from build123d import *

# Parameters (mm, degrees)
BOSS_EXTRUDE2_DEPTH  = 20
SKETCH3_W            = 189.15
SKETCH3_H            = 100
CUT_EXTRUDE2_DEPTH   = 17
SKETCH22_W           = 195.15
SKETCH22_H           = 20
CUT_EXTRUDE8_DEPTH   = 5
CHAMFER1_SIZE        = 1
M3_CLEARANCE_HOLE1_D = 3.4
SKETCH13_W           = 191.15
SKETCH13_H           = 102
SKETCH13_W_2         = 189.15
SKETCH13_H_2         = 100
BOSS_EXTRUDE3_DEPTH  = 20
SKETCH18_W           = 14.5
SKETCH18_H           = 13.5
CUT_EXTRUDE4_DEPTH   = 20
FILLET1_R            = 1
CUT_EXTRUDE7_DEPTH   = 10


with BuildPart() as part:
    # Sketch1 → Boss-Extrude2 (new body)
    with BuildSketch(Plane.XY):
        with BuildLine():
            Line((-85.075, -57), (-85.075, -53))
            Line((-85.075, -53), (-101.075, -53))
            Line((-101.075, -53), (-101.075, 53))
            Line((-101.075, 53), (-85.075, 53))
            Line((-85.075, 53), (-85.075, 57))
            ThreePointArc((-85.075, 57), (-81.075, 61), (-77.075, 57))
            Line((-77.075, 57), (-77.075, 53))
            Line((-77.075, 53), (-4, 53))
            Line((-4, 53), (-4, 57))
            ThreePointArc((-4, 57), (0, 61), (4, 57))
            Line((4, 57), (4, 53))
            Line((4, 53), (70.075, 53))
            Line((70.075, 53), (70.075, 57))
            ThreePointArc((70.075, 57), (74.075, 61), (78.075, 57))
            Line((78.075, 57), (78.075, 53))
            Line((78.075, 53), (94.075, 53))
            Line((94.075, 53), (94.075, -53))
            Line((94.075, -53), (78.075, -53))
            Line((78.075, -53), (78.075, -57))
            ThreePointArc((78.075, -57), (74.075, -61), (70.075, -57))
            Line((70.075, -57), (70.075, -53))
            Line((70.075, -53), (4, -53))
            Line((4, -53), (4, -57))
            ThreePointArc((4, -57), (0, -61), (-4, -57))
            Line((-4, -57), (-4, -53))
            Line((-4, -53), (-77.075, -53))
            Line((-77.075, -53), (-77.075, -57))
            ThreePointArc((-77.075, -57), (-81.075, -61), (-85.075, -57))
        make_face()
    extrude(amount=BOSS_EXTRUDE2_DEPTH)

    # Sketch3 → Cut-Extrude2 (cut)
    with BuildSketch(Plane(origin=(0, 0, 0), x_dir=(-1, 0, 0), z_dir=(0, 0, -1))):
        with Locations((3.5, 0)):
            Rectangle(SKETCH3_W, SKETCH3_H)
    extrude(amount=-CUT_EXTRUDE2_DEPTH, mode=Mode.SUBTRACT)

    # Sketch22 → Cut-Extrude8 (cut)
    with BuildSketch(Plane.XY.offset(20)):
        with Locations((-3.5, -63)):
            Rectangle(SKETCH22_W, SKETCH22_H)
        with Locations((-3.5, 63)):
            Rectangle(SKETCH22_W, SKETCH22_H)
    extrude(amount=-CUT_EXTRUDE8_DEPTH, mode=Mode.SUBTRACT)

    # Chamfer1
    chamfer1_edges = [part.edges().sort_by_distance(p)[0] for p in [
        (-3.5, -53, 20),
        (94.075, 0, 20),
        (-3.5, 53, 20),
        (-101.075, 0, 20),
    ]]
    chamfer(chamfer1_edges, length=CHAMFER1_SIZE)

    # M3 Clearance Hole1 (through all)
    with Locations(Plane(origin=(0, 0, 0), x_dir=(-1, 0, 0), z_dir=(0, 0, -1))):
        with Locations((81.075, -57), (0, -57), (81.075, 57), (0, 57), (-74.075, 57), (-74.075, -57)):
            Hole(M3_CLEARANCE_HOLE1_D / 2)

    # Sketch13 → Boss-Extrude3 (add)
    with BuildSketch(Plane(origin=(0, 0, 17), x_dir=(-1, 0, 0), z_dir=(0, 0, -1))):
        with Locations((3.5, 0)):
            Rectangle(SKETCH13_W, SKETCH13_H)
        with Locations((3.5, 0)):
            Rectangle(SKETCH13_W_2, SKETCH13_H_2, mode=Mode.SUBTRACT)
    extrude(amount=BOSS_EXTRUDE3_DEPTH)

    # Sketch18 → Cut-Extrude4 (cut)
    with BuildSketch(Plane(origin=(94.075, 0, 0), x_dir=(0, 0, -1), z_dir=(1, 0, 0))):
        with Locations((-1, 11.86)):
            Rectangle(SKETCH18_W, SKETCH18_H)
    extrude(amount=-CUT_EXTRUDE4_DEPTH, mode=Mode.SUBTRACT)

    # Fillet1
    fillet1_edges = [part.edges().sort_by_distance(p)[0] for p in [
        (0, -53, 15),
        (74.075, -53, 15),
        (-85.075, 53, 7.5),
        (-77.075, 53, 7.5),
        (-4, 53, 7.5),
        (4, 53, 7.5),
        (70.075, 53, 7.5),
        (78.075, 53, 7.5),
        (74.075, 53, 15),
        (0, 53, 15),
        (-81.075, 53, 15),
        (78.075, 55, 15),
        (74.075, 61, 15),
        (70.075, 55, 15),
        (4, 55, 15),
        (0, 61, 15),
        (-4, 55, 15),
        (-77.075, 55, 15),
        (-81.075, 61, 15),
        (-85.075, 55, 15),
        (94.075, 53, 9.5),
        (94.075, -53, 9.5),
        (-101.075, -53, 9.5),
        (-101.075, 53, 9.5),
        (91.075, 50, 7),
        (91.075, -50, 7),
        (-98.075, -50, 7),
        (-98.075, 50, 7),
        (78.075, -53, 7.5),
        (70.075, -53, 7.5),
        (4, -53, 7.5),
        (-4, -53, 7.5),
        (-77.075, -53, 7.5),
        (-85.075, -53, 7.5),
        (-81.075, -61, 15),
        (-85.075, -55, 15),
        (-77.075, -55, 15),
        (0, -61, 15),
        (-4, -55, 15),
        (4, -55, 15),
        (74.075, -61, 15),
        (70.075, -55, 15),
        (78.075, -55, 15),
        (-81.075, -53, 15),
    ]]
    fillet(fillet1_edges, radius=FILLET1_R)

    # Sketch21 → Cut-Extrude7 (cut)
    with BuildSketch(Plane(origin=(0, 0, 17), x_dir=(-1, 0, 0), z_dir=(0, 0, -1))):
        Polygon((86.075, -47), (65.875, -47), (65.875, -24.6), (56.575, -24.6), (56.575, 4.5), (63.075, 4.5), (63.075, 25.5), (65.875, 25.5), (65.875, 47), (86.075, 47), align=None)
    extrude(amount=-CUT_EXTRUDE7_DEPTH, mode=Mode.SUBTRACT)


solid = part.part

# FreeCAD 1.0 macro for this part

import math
import FreeCAD as App
import Part
import Sketcher


def edges_at(feature, points):
    """Names of the edges that pass closest to the given points."""
    edges = feature.Shape.Edges
    near = lambda p: min(range(len(edges)), key=lambda i: edges[i].distToShape(Part.Vertex(*p))[0])
    return sorted({f"Edge{near(p) + 1}" for p in points})


def add_polygon(sketch, points):
    """Adds a closed chain of lines whose ends are joined by coincident constraints."""
    first, n = sketch.GeometryCount, len(points)
    for a, b in zip(points, points[1:] + points[:1]):
        sketch.addGeometry(Part.LineSegment(App.Vector(*a, 0), App.Vector(*b, 0)), False)
    for i in range(n):
        sketch.addConstraint(Sketcher.Constraint("Coincident", first + i, 2, first + (i + 1) % n, 1))

doc = App.newDocument("Part")
body = doc.addObject("PartDesign::Body", "Body")

# Sketch on XY plane
sketch1 = body.newObject("Sketcher::SketchObject", "Sketch")
sketch1.AttachmentSupport = (doc.getObject("XY_Plane"), [""])
sketch1.MapMode = "FlatFace"
sketch1.addGeometry([
    Part.LineSegment(App.Vector(-85.075, -53, 0), App.Vector(-85.075, -57, 0)),  # 0
    Part.ArcOfCircle(Part.Circle(App.Vector(-81.075, -57, 0), App.Vector(0, 0, 1), 4), math.radians(180), math.radians(360)),  # 1
    Part.LineSegment(App.Vector(-77.075, -57, 0), App.Vector(-77.075, -53, 0)),  # 2
    Part.LineSegment(App.Vector(-77.075, -53, 0), App.Vector(-4, -53, 0)),  # 3
    Part.LineSegment(App.Vector(-4, -53, 0), App.Vector(-4, -57, 0)),  # 4
    Part.ArcOfCircle(Part.Circle(App.Vector(0, -57, 0), App.Vector(0, 0, 1), 4), math.radians(180), math.radians(360)),  # 5
    Part.LineSegment(App.Vector(4, -57, 0), App.Vector(4, -53, 0)),  # 6
    Part.LineSegment(App.Vector(4, -53, 0), App.Vector(70.075, -53, 0)),  # 7
    Part.LineSegment(App.Vector(70.075, -53, 0), App.Vector(70.075, -57, 0)),  # 8
    Part.ArcOfCircle(Part.Circle(App.Vector(74.075, -57, 0), App.Vector(0, 0, 1), 4), math.radians(180), math.radians(360)),  # 9
    Part.LineSegment(App.Vector(78.075, -57, 0), App.Vector(78.075, -53, 0)),  # 10
    Part.LineSegment(App.Vector(78.075, -53, 0), App.Vector(94.075, -53, 0)),  # 11
    Part.LineSegment(App.Vector(94.075, -53, 0), App.Vector(94.075, 53, 0)),  # 12
    Part.LineSegment(App.Vector(94.075, 53, 0), App.Vector(78.075, 53, 0)),  # 13
    Part.LineSegment(App.Vector(78.075, 53, 0), App.Vector(78.075, 57, 0)),  # 14
    Part.ArcOfCircle(Part.Circle(App.Vector(74.075, 57, 0), App.Vector(0, 0, 1), 4), math.radians(0), math.radians(180)),  # 15
    Part.LineSegment(App.Vector(70.075, 57, 0), App.Vector(70.075, 53, 0)),  # 16
    Part.LineSegment(App.Vector(70.075, 53, 0), App.Vector(4, 53, 0)),  # 17
    Part.LineSegment(App.Vector(4, 53, 0), App.Vector(4, 57, 0)),  # 18
    Part.ArcOfCircle(Part.Circle(App.Vector(0, 57, 0), App.Vector(0, 0, 1), 4), math.radians(0), math.radians(180)),  # 19
    Part.LineSegment(App.Vector(-4, 57, 0), App.Vector(-4, 53, 0)),  # 20
    Part.LineSegment(App.Vector(-4, 53, 0), App.Vector(-77.075, 53, 0)),  # 21
    Part.LineSegment(App.Vector(-77.075, 53, 0), App.Vector(-77.075, 57, 0)),  # 22
    Part.ArcOfCircle(Part.Circle(App.Vector(-81.075, 57, 0), App.Vector(0, 0, 1), 4), math.radians(0), math.radians(180)),  # 23
    Part.LineSegment(App.Vector(-85.075, 57, 0), App.Vector(-85.075, 53, 0)),  # 24
    Part.LineSegment(App.Vector(-85.075, 53, 0), App.Vector(-101.075, 53, 0)),  # 25
    Part.LineSegment(App.Vector(-101.075, 53, 0), App.Vector(-101.075, -53, 0)),  # 26
    Part.LineSegment(App.Vector(-101.075, -53, 0), App.Vector(-85.075, -53, 0)),  # 27
], False)
sketch1.addConstraint([
    Sketcher.Constraint("Tangent", 0, 2, 1, 1),
    Sketcher.Constraint("Tangent", 1, 2, 2, 1),
    Sketcher.Constraint("Coincident", 2, 2, 3, 1),
    Sketcher.Constraint("Coincident", 3, 2, 4, 1),
    Sketcher.Constraint("Tangent", 4, 2, 5, 1),
    Sketcher.Constraint("Tangent", 5, 2, 6, 1),
    Sketcher.Constraint("Coincident", 6, 2, 7, 1),
    Sketcher.Constraint("Coincident", 7, 2, 8, 1),
    Sketcher.Constraint("Tangent", 8, 2, 9, 1),
    Sketcher.Constraint("Tangent", 9, 2, 10, 1),
    Sketcher.Constraint("Coincident", 10, 2, 11, 1),
    Sketcher.Constraint("Coincident", 11, 2, 12, 1),
    Sketcher.Constraint("Coincident", 12, 2, 13, 1),
    Sketcher.Constraint("Coincident", 13, 2, 14, 1),
    Sketcher.Constraint("Tangent", 14, 2, 15, 1),
    Sketcher.Constraint("Tangent", 15, 2, 16, 1),
    Sketcher.Constraint("Coincident", 16, 2, 17, 1),
    Sketcher.Constraint("Coincident", 17, 2, 18, 1),
    Sketcher.Constraint("Tangent", 18, 2, 19, 1),
    Sketcher.Constraint("Tangent", 19, 2, 20, 1),
    Sketcher.Constraint("Coincident", 20, 2, 21, 1),
    Sketcher.Constraint("Coincident", 21, 2, 22, 1),
    Sketcher.Constraint("Tangent", 22, 2, 23, 1),
    Sketcher.Constraint("Tangent", 23, 2, 24, 1),
    Sketcher.Constraint("Coincident", 24, 2, 25, 1),
    Sketcher.Constraint("Coincident", 25, 2, 26, 1),
    Sketcher.Constraint("Coincident", 26, 2, 27, 1),
    Sketcher.Constraint("Coincident", 27, 2, 0, 1),
    Sketcher.Constraint("Vertical", 0),
    Sketcher.Constraint("Vertical", 2),
    Sketcher.Constraint("Horizontal", 3),
    Sketcher.Constraint("Vertical", 4),
    Sketcher.Constraint("Vertical", 6),
    Sketcher.Constraint("Horizontal", 7),
    Sketcher.Constraint("Vertical", 8),
    Sketcher.Constraint("Vertical", 10),
    Sketcher.Constraint("Horizontal", 11),
    Sketcher.Constraint("Vertical", 12),
    Sketcher.Constraint("Horizontal", 13),
    Sketcher.Constraint("Vertical", 14),
    Sketcher.Constraint("Vertical", 16),
    Sketcher.Constraint("Horizontal", 17),
    Sketcher.Constraint("Vertical", 18),
    Sketcher.Constraint("Vertical", 20),
    Sketcher.Constraint("Horizontal", 21),
    Sketcher.Constraint("Vertical", 22),
    Sketcher.Constraint("Vertical", 24),
    Sketcher.Constraint("Horizontal", 25),
    Sketcher.Constraint("Vertical", 26),
    Sketcher.Constraint("Horizontal", 27),
    Sketcher.Constraint("Equal", 1, 5),
    Sketcher.Constraint("Equal", 5, 9),
    Sketcher.Constraint("Equal", 9, 15),
    Sketcher.Constraint("Equal", 15, 19),
    Sketcher.Constraint("Equal", 19, 23),
    Sketcher.Constraint("Symmetric", 5, 3, 19, 3, -1, 1),
    Sketcher.Constraint("Symmetric", 3, 2, 6, 2, -2),
    Sketcher.Constraint("Symmetric", 9, 3, 15, 3, -1),
    Sketcher.Constraint("Symmetric", 1, 3, 23, 3, -1),
    Sketcher.Constraint("Horizontal", 1, 3, 5, 3),
    Sketcher.Constraint("Horizontal", 5, 3, 9, 3),
    Sketcher.Constraint("Horizontal", 7, 2, 10, 2),
    Sketcher.Constraint("Horizontal", 13, 2, 16, 2),
    Sketcher.Constraint("Horizontal", 17, 2, 20, 2),
    Sketcher.Constraint("Horizontal", 21, 2, 24, 2),
    Sketcher.Constraint("Horizontal", 11, 2, 26, 2),
    Sketcher.Constraint("Equal", 13, 25),
    Sketcher.Constraint("Equal", 10, 14),
    Sketcher.Constraint("Radius", 1, 4.0),
    Sketcher.Constraint("DistanceX", 11, 1, 11, 2, 16.0),
    Sketcher.Constraint("DistanceY", 0, 2, 0, 1, 4.0),
    Sketcher.Constraint("DistanceY", 12, 1, 12, 2, 106.0),
    Sketcher.Constraint("DistanceX", 3, 1, 3, 2, 73.075),
    Sketcher.Constraint("DistanceX", 7, 1, 7, 2, 66.075),
])
pad1 = body.newObject("PartDesign::Pad", "Pad")
pad1.Profile = sketch1
pad1.Length = 20

# Sketch on XY plane
sketch2 = body.newObject("Sketcher::SketchObject", "Sketch001")
sketch2.AttachmentSupport = (doc.getObject("XY_Plane"), [""])
sketch2.MapMode = "FlatFace"
add_polygon(sketch2, [(91.075, 50), (91.075, -50), (-98.075, -50), (-98.075, 50)])  # lines 0-3
sketch2.addConstraint([
    Sketcher.Constraint("Vertical", 0),
    Sketcher.Constraint("Horizontal", 1),
    Sketcher.Constraint("Vertical", 2),
    Sketcher.Constraint("Horizontal", 3),
    Sketcher.Constraint("DistanceY", 0, 2, 0, 1, 100.0),
    Sketcher.Constraint("DistanceY", 0, 2, -1, 1, 50.0),
    Sketcher.Constraint("DistanceX", 1, 2, 1, 1, 189.15),
    Sketcher.Constraint("DistanceX", -1, 1, 0, 2, 91.075),
])
pocket1 = body.newObject("PartDesign::Pocket", "Pocket")
pocket1.Profile = sketch2
pocket1.Length = 17
pocket1.Reversed = True

# Sketch on XY plane
sketch3 = body.newObject("Sketcher::SketchObject", "Sketch002")
sketch3.AttachmentSupport = (doc.getObject("XY_Plane"), [""])
sketch3.MapMode = "FlatFace"
sketch3.AttachmentOffset = App.Placement(App.Vector(0, 0, 20), App.Rotation())
add_polygon(sketch3, [(-101.075, -53), (-101.075, -73), (94.075, -73), (94.075, -53)])  # lines 0-3
add_polygon(sketch3, [(-101.075, 73), (-101.075, 53), (94.075, 53), (94.075, 73)])  # lines 4-7
sketch3.addConstraint([
    Sketcher.Constraint("Vertical", 0),
    Sketcher.Constraint("Horizontal", 1),
    Sketcher.Constraint("Vertical", 2),
    Sketcher.Constraint("Horizontal", 3),
    Sketcher.Constraint("Vertical", 4),
    Sketcher.Constraint("Horizontal", 5),
    Sketcher.Constraint("Vertical", 6),
    Sketcher.Constraint("Horizontal", 7),
    Sketcher.Constraint("Symmetric", 3, 2, 4, 2, -1),
    Sketcher.Constraint("Symmetric", 1, 2, 6, 2, -1),
    Sketcher.Constraint("DistanceY", 0, 2, 0, 1, 20.0),
    Sketcher.Constraint("DistanceY", 0, 2, -1, 1, 73.0),
    Sketcher.Constraint("DistanceX", 1, 1, 1, 2, 195.15),
    Sketcher.Constraint("DistanceX", 0, 2, -1, 1, 101.075),
])
pocket2 = body.newObject("PartDesign::Pocket", "Pocket001")
pocket2.Profile = sketch3
pocket2.Length = 5
doc.recompute()

chamfer = body.newObject("PartDesign::Chamfer", "Chamfer")
chamfer.Base = (pocket2, edges_at(pocket2, [
    (-3.5, -53, 20),
    (94.075, 0, 20),
    (-3.5, 53, 20),
    (-101.075, 0, 20),
]))
chamfer.Size = 1

# Sketch on XY plane
sketch4 = body.newObject("Sketcher::SketchObject", "Sketch003")
sketch4.AttachmentSupport = (doc.getObject("XY_Plane"), [""])
sketch4.MapMode = "FlatFace"
sketch4.addGeometry([
    Part.Circle(App.Vector(-81.075, -57, 0), App.Vector(0, 0, 1), 1.7),  # 0
    Part.Circle(App.Vector(0, -57, 0), App.Vector(0, 0, 1), 1.7),  # 1
    Part.Circle(App.Vector(-81.075, 57, 0), App.Vector(0, 0, 1), 1.7),  # 2
    Part.Circle(App.Vector(0, 57, 0), App.Vector(0, 0, 1), 1.7),  # 3
    Part.Circle(App.Vector(74.075, 57, 0), App.Vector(0, 0, 1), 1.7),  # 4
    Part.Circle(App.Vector(74.075, -57, 0), App.Vector(0, 0, 1), 1.7),  # 5
], False)
sketch4.addConstraint([
    Sketcher.Constraint("Equal", 0, 1),
    Sketcher.Constraint("Equal", 1, 2),
    Sketcher.Constraint("Equal", 2, 3),
    Sketcher.Constraint("Equal", 3, 4),
    Sketcher.Constraint("Equal", 4, 5),
    Sketcher.Constraint("Symmetric", 1, 3, 3, 3, -1, 1),
    Sketcher.Constraint("Symmetric", 0, 3, 2, 3, -1),
    Sketcher.Constraint("Symmetric", 4, 3, 5, 3, -1),
    Sketcher.Constraint("PointOnObject", 1, 3, -2),
    Sketcher.Constraint("Horizontal", 0, 3, 1, 3),
    Sketcher.Constraint("Horizontal", 3, 3, 4, 3),
    Sketcher.Constraint("Diameter", 0, 3.4),
    Sketcher.Constraint("DistanceY", 0, 3, -1, 1, 57.0),
    Sketcher.Constraint("DistanceX", 2, 3, 4, 3, 155.15),
    Sketcher.Constraint("DistanceX", 0, 3, -1, 1, 81.075),
])
doc.recompute()
hole = body.newObject("PartDesign::Hole", "Hole")
hole.Profile = sketch4
hole.ThreadType = "None"
hole.Diameter = 3.4
hole.DepthType = "ThroughAll"
hole.Reversed = True

# Sketch on XY plane
sketch5 = body.newObject("Sketcher::SketchObject", "Sketch004")
sketch5.AttachmentSupport = (doc.getObject("XY_Plane"), [""])
sketch5.MapMode = "FlatFace"
sketch5.AttachmentOffset = App.Placement(App.Vector(0, 0, 17), App.Rotation())
add_polygon(sketch5, [(92.075, 51), (92.075, -51), (-99.075, -51), (-99.075, 51)])  # lines 0-3
add_polygon(sketch5, [(-98.075, -50), (91.075, -50), (91.075, 50), (-98.075, 50)])  # lines 4-7
sketch5.addConstraint([
    Sketcher.Constraint("Vertical", 0),
    Sketcher.Constraint("Horizontal", 1),
    Sketcher.Constraint("Vertical", 2),
    Sketcher.Constraint("Horizontal", 3),
    Sketcher.Constraint("Horizontal", 4),
    Sketcher.Constraint("Vertical", 5),
    Sketcher.Constraint("Horizontal", 6),
    Sketcher.Constraint("Vertical", 7),
    Sketcher.Constraint("DistanceY", 0, 2, 0, 1, 102.0),
    Sketcher.Constraint("DistanceY", 5, 1, 5, 2, 100.0),
    Sketcher.Constraint("DistanceY", 0, 2, -1, 1, 51.0),
    Sketcher.Constraint("DistanceY", 4, 2, -1, 1, 50.0),
    Sketcher.Constraint("DistanceX", 4, 2, 0, 2, 1.0),
    Sketcher.Constraint("DistanceX", 2, 2, 6, 2, 1.0),
    Sketcher.Constraint("DistanceX", 1, 2, 1, 1, 191.15),
    Sketcher.Constraint("DistanceX", -1, 1, 0, 2, 92.075),
])
pad2 = body.newObject("PartDesign::Pad", "Pad001")
pad2.Profile = sketch5
pad2.Length = 20
pad2.Reversed = True

# Sketch on YZ plane
sketch6 = body.newObject("Sketcher::SketchObject", "Sketch005")
sketch6.AttachmentSupport = (doc.getObject("YZ_Plane"), [""])
sketch6.MapMode = "FlatFace"
sketch6.AttachmentOffset = App.Placement(App.Vector(0, 0, 94.075), App.Rotation())
add_polygon(sketch6, [(18.61, 8.25), (5.11, 8.25), (5.11, -6.25), (18.61, -6.25)])  # lines 0-3
sketch6.addConstraint([
    Sketcher.Constraint("Horizontal", 0),
    Sketcher.Constraint("Vertical", 1),
    Sketcher.Constraint("Horizontal", 2),
    Sketcher.Constraint("Vertical", 3),
    Sketcher.Constraint("DistanceX", 0, 2, 0, 1, 13.5),
    Sketcher.Constraint("DistanceY", 1, 2, 1, 1, 14.5),
    Sketcher.Constraint("DistanceX", -1, 1, 0, 2, 5.11),
    Sketcher.Constraint("DistanceY", -1, 1, 0, 2, 8.25),
])
pocket3 = body.newObject("PartDesign::Pocket", "Pocket002")
pocket3.Profile = sketch6
pocket3.Length = 20
doc.recompute()

fillet = body.newObject("PartDesign::Fillet", "Fillet")
fillet.Base = (pocket3, edges_at(pocket3, [
    (0, -53, 15),
    (74.075, -53, 15),
    (-85.075, 53, 7.5),
    (-77.075, 53, 7.5),
    (-4, 53, 7.5),
    (4, 53, 7.5),
    (70.075, 53, 7.5),
    (78.075, 53, 7.5),
    (74.075, 53, 15),
    (0, 53, 15),
    (-81.075, 53, 15),
    (78.075, 55, 15),
    (74.075, 61, 15),
    (70.075, 55, 15),
    (4, 55, 15),
    (0, 61, 15),
    (-4, 55, 15),
    (-77.075, 55, 15),
    (-81.075, 61, 15),
    (-85.075, 55, 15),
    (94.075, 53, 9.5),
    (94.075, -53, 9.5),
    (-101.075, -53, 9.5),
    (-101.075, 53, 9.5),
    (91.075, 50, 7),
    (91.075, -50, 7),
    (-98.075, -50, 7),
    (-98.075, 50, 7),
    (78.075, -53, 7.5),
    (70.075, -53, 7.5),
    (4, -53, 7.5),
    (-4, -53, 7.5),
    (-77.075, -53, 7.5),
    (-85.075, -53, 7.5),
    (-81.075, -61, 15),
    (-85.075, -55, 15),
    (-77.075, -55, 15),
    (0, -61, 15),
    (-4, -55, 15),
    (4, -55, 15),
    (74.075, -61, 15),
    (70.075, -55, 15),
    (78.075, -55, 15),
    (-81.075, -53, 15),
]))
fillet.Radius = 1

# Sketch on XY plane
sketch7 = body.newObject("Sketcher::SketchObject", "Sketch006")
sketch7.AttachmentSupport = (doc.getObject("XY_Plane"), [""])
sketch7.MapMode = "FlatFace"
sketch7.AttachmentOffset = App.Placement(App.Vector(0, 0, 17), App.Rotation())
add_polygon(sketch7, [(-65.875, -47), (-86.075, -47), (-86.075, 47), (-65.875, 47), (-65.875, 25.5), (-63.075, 25.5), (-63.075, 4.5), (-56.575, 4.5), (-56.575, -24.6), (-65.875, -24.6)])  # lines 0-9
sketch7.addConstraint([
    Sketcher.Constraint("Horizontal", 0),
    Sketcher.Constraint("Vertical", 1),
    Sketcher.Constraint("Horizontal", 2),
    Sketcher.Constraint("Vertical", 3),
    Sketcher.Constraint("Horizontal", 4),
    Sketcher.Constraint("Vertical", 5),
    Sketcher.Constraint("Horizontal", 6),
    Sketcher.Constraint("Vertical", 7),
    Sketcher.Constraint("Horizontal", 8),
    Sketcher.Constraint("Vertical", 9),
    Sketcher.Constraint("Symmetric", 2, 2, 9, 2, -1),
    Sketcher.Constraint("DistanceY", 1, 1, 1, 2, 94.0),
    Sketcher.Constraint("DistanceY", 5, 2, 5, 1, 21.0),
    Sketcher.Constraint("DistanceX", 0, 2, 0, 1, 20.2),
    Sketcher.Constraint("DistanceX", 4, 1, 4, 2, 2.8),
    Sketcher.Constraint("DistanceX", 6, 1, 6, 2, 6.5),
    Sketcher.Constraint("DistanceY", 3, 2, 3, 1, 21.5),
    Sketcher.Constraint("DistanceY", 7, 2, 7, 1, 29.1),
    Sketcher.Constraint("DistanceX", 0, 2, -1, 1, 86.075),
])
pocket4 = body.newObject("PartDesign::Pocket", "Pocket003")
pocket4.Profile = sketch7
pocket4.Length = 10
pocket4.Reversed = True

doc.recompute()
